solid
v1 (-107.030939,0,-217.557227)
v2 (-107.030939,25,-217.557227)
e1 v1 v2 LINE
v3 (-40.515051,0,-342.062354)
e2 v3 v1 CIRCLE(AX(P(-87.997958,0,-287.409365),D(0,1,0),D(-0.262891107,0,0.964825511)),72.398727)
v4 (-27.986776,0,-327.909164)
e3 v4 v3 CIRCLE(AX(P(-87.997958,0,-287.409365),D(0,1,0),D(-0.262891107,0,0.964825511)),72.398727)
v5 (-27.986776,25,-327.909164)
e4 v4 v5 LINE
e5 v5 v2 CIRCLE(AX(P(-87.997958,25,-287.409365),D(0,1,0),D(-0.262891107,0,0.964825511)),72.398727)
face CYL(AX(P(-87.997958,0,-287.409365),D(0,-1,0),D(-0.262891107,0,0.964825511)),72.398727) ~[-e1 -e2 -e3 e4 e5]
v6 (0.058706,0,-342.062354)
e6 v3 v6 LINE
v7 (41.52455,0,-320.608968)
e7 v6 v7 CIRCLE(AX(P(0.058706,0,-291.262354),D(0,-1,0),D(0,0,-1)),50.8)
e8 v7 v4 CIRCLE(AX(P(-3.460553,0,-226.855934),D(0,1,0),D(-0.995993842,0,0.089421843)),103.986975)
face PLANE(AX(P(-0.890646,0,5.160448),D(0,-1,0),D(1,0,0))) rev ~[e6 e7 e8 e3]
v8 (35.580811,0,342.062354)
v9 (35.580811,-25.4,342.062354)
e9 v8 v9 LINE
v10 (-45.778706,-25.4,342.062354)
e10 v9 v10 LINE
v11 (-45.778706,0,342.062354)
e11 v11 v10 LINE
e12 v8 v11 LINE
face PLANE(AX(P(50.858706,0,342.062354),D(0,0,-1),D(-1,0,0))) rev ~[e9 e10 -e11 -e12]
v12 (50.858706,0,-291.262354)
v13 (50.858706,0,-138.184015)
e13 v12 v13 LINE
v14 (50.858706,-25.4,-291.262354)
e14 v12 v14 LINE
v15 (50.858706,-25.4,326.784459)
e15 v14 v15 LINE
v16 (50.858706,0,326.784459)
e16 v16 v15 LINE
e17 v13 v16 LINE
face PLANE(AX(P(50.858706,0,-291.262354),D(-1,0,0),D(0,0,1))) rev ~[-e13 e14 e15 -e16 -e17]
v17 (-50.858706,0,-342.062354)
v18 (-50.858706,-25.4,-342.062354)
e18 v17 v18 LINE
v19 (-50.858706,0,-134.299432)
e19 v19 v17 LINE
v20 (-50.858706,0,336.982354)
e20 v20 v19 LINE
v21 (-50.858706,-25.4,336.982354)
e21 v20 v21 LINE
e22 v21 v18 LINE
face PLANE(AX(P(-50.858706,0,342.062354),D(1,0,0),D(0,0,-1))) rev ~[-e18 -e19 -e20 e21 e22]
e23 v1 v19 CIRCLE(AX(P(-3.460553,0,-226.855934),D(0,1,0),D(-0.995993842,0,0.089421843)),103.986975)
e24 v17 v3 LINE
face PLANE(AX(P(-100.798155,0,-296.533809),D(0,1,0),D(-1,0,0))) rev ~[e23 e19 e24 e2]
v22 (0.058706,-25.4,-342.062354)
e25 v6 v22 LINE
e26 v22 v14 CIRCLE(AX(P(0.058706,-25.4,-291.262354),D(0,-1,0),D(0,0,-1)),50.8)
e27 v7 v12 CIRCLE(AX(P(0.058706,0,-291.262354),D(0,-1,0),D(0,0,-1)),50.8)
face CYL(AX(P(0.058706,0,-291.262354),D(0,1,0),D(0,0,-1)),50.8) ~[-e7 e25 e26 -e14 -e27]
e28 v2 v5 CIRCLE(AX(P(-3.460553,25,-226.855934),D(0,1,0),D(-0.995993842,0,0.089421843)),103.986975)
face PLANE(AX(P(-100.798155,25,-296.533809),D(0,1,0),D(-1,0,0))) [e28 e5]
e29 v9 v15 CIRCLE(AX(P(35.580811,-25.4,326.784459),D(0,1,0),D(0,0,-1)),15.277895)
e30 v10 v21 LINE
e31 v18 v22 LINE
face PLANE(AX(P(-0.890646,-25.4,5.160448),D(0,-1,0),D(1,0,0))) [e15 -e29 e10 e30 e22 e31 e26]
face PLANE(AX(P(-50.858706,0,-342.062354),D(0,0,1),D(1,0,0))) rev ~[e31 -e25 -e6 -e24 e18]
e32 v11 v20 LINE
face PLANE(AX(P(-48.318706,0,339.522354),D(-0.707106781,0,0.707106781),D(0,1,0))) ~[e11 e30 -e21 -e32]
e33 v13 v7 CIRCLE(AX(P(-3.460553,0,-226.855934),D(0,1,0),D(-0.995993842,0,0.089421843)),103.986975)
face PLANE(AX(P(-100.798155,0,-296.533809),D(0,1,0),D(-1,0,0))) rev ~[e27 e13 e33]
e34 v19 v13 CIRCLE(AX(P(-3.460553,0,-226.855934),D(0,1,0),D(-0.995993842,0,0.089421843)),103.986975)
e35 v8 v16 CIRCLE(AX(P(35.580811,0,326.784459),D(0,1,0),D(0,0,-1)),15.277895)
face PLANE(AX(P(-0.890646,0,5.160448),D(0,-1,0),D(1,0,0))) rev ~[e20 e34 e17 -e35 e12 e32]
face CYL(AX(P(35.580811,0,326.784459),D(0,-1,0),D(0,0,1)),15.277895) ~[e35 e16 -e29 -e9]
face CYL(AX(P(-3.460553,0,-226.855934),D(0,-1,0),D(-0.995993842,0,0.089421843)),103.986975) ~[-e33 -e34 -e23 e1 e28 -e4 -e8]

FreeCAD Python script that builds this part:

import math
import FreeCAD as App
import Part
import Sketcher

V = App.Vector
Q = App.Units.Quantity


def edges_at(feature, points):
    """Names of the edges that pass closest to the given points."""
    edges = feature.Shape.Edges
    near = lambda p: min(range(len(edges)), key=lambda i: edges[i].distToShape(Part.Vertex(*p))[0])
    return sorted({f"Edge{near(p) + 1}" for p in points})

doc = App.newDocument("Part")
body = doc.addObject("PartDesign::Body", "Body")

# Sketch on XZ plane
sketch1 = body.newObject("Sketcher::SketchObject", "Sketch")
sketch1.AttachmentSupport = (doc.getObject("XZ_Plane"), [""])
sketch1.MapMode = "FlatFace"
sketch1.addGeometry(Part.LineSegment(V(51, 342, 0), V(-51, 342, 0)), False)
sketch1.addGeometry(Part.LineSegment(V(-51, 342, 0), V(-51, -342, 0)), False)
sketch1.addGeometry(Part.LineSegment(V(-51, -342, 0), V(0, -342, 0)), False)
sketch1.addGeometry(Part.ArcOfCircle(Part.Circle(V(0, -291, 0), V(0, 0, 1), 51), math.radians(-90), math.radians(0)), False)
sketch1.addGeometry(Part.LineSegment(V(51, -291, 0), V(51, 342, 0)), False)
sketch1.addConstraint(Sketcher.Constraint("Coincident", 0, 2, 1, 1))
sketch1.addConstraint(Sketcher.Constraint("Coincident", 1, 2, 2, 1))
sketch1.addConstraint(Sketcher.Constraint("Tangent", 2, 2, 3, 1))
sketch1.addConstraint(Sketcher.Constraint("Tangent", 3, 2, 4, 1))
sketch1.addConstraint(Sketcher.Constraint("Coincident", 4, 2, 0, 1))
sketch1.addConstraint(Sketcher.Constraint("Horizontal", 0))
sketch1.addConstraint(Sketcher.Constraint("Vertical", 1))
sketch1.addConstraint(Sketcher.Constraint("Horizontal", 2))
sketch1.addConstraint(Sketcher.Constraint("Vertical", 4))
sketch1.addConstraint(Sketcher.Constraint("Symmetric", 1, 2, 4, 2, -1, 1))
sketch1.addConstraint(Sketcher.Constraint("Radius", 3, Q("2 in")))
sketch1.addConstraint(Sketcher.Constraint("DistanceY", 1, 2, 1, 1, Q("684.124708 mm")))
sketch1.addConstraint(Sketcher.Constraint("DistanceX", 0, 2, 0, 1, Q("101.717412 mm")))
pad1 = body.newObject("PartDesign::Pad", "Pad")
pad1.Profile = sketch1
pad1.Length = Q("1 in")
doc.recompute()

chamfer = body.newObject("PartDesign::Chamfer", "Chamfer")
chamfer.Base = (pad1, edges_at(pad1, [(-50.859, -12.7, 342.062)]))
chamfer.Size = Q("0.2 in")
doc.recompute()

fillet = body.newObject("PartDesign::Fillet", "Fillet")
fillet.Base = (chamfer, edges_at(chamfer, [(50.859, -12.7, 342.062)]))
fillet.Radius = 15.277895

# Sketch on XZ plane
sketch2 = body.newObject("Sketcher::SketchObject", "Sketch001")
sketch2.AttachmentSupport = (doc.getObject("XZ_Plane"), [""])
sketch2.MapMode = "FlatFace"
sketch2.addGeometry(Part.ArcOfCircle(Part.Circle(V(-88, -287, 0), V(0, 0, 1), 72), math.radians(105), math.radians(326)), False)
sketch2.addGeometry(Part.ArcOfCircle(Part.Circle(V(-3, -227, 0), V(0, 0, 1), 104), math.radians(-104), math.radians(175)), False)
sketch2.addConstraint(Sketcher.Constraint("Coincident", 0, 1, 1, 2))
sketch2.addConstraint(Sketcher.Constraint("Coincident", 1, 1, 0, 2))
sketch2.addConstraint(Sketcher.Constraint("Radius", 0, Q("72.398727 mm")))
sketch2.addConstraint(Sketcher.Constraint("Radius", 1, Q("103.986975 mm")))
sketch2.addConstraint(Sketcher.Constraint("DistanceY", 1, 1, 0, 3, Q("40.499799 mm")))
sketch2.addConstraint(Sketcher.Constraint("DistanceX", 0, 3, -1, 1, Q("87.997958 mm")))
sketch2.addConstraint(Sketcher.Constraint("DistanceX", 0, 1, -1, 1, Q("107.030939 mm")))
sketch2.addConstraint(Sketcher.Constraint("DistanceY", 0, 3, -1, 1, Q("287.409365 mm")))
pad2 = body.newObject("PartDesign::Pad", "Pad001")
pad2.Profile = sketch2
pad2.Length = 25
pad2.Reversed = True

doc.recompute()
